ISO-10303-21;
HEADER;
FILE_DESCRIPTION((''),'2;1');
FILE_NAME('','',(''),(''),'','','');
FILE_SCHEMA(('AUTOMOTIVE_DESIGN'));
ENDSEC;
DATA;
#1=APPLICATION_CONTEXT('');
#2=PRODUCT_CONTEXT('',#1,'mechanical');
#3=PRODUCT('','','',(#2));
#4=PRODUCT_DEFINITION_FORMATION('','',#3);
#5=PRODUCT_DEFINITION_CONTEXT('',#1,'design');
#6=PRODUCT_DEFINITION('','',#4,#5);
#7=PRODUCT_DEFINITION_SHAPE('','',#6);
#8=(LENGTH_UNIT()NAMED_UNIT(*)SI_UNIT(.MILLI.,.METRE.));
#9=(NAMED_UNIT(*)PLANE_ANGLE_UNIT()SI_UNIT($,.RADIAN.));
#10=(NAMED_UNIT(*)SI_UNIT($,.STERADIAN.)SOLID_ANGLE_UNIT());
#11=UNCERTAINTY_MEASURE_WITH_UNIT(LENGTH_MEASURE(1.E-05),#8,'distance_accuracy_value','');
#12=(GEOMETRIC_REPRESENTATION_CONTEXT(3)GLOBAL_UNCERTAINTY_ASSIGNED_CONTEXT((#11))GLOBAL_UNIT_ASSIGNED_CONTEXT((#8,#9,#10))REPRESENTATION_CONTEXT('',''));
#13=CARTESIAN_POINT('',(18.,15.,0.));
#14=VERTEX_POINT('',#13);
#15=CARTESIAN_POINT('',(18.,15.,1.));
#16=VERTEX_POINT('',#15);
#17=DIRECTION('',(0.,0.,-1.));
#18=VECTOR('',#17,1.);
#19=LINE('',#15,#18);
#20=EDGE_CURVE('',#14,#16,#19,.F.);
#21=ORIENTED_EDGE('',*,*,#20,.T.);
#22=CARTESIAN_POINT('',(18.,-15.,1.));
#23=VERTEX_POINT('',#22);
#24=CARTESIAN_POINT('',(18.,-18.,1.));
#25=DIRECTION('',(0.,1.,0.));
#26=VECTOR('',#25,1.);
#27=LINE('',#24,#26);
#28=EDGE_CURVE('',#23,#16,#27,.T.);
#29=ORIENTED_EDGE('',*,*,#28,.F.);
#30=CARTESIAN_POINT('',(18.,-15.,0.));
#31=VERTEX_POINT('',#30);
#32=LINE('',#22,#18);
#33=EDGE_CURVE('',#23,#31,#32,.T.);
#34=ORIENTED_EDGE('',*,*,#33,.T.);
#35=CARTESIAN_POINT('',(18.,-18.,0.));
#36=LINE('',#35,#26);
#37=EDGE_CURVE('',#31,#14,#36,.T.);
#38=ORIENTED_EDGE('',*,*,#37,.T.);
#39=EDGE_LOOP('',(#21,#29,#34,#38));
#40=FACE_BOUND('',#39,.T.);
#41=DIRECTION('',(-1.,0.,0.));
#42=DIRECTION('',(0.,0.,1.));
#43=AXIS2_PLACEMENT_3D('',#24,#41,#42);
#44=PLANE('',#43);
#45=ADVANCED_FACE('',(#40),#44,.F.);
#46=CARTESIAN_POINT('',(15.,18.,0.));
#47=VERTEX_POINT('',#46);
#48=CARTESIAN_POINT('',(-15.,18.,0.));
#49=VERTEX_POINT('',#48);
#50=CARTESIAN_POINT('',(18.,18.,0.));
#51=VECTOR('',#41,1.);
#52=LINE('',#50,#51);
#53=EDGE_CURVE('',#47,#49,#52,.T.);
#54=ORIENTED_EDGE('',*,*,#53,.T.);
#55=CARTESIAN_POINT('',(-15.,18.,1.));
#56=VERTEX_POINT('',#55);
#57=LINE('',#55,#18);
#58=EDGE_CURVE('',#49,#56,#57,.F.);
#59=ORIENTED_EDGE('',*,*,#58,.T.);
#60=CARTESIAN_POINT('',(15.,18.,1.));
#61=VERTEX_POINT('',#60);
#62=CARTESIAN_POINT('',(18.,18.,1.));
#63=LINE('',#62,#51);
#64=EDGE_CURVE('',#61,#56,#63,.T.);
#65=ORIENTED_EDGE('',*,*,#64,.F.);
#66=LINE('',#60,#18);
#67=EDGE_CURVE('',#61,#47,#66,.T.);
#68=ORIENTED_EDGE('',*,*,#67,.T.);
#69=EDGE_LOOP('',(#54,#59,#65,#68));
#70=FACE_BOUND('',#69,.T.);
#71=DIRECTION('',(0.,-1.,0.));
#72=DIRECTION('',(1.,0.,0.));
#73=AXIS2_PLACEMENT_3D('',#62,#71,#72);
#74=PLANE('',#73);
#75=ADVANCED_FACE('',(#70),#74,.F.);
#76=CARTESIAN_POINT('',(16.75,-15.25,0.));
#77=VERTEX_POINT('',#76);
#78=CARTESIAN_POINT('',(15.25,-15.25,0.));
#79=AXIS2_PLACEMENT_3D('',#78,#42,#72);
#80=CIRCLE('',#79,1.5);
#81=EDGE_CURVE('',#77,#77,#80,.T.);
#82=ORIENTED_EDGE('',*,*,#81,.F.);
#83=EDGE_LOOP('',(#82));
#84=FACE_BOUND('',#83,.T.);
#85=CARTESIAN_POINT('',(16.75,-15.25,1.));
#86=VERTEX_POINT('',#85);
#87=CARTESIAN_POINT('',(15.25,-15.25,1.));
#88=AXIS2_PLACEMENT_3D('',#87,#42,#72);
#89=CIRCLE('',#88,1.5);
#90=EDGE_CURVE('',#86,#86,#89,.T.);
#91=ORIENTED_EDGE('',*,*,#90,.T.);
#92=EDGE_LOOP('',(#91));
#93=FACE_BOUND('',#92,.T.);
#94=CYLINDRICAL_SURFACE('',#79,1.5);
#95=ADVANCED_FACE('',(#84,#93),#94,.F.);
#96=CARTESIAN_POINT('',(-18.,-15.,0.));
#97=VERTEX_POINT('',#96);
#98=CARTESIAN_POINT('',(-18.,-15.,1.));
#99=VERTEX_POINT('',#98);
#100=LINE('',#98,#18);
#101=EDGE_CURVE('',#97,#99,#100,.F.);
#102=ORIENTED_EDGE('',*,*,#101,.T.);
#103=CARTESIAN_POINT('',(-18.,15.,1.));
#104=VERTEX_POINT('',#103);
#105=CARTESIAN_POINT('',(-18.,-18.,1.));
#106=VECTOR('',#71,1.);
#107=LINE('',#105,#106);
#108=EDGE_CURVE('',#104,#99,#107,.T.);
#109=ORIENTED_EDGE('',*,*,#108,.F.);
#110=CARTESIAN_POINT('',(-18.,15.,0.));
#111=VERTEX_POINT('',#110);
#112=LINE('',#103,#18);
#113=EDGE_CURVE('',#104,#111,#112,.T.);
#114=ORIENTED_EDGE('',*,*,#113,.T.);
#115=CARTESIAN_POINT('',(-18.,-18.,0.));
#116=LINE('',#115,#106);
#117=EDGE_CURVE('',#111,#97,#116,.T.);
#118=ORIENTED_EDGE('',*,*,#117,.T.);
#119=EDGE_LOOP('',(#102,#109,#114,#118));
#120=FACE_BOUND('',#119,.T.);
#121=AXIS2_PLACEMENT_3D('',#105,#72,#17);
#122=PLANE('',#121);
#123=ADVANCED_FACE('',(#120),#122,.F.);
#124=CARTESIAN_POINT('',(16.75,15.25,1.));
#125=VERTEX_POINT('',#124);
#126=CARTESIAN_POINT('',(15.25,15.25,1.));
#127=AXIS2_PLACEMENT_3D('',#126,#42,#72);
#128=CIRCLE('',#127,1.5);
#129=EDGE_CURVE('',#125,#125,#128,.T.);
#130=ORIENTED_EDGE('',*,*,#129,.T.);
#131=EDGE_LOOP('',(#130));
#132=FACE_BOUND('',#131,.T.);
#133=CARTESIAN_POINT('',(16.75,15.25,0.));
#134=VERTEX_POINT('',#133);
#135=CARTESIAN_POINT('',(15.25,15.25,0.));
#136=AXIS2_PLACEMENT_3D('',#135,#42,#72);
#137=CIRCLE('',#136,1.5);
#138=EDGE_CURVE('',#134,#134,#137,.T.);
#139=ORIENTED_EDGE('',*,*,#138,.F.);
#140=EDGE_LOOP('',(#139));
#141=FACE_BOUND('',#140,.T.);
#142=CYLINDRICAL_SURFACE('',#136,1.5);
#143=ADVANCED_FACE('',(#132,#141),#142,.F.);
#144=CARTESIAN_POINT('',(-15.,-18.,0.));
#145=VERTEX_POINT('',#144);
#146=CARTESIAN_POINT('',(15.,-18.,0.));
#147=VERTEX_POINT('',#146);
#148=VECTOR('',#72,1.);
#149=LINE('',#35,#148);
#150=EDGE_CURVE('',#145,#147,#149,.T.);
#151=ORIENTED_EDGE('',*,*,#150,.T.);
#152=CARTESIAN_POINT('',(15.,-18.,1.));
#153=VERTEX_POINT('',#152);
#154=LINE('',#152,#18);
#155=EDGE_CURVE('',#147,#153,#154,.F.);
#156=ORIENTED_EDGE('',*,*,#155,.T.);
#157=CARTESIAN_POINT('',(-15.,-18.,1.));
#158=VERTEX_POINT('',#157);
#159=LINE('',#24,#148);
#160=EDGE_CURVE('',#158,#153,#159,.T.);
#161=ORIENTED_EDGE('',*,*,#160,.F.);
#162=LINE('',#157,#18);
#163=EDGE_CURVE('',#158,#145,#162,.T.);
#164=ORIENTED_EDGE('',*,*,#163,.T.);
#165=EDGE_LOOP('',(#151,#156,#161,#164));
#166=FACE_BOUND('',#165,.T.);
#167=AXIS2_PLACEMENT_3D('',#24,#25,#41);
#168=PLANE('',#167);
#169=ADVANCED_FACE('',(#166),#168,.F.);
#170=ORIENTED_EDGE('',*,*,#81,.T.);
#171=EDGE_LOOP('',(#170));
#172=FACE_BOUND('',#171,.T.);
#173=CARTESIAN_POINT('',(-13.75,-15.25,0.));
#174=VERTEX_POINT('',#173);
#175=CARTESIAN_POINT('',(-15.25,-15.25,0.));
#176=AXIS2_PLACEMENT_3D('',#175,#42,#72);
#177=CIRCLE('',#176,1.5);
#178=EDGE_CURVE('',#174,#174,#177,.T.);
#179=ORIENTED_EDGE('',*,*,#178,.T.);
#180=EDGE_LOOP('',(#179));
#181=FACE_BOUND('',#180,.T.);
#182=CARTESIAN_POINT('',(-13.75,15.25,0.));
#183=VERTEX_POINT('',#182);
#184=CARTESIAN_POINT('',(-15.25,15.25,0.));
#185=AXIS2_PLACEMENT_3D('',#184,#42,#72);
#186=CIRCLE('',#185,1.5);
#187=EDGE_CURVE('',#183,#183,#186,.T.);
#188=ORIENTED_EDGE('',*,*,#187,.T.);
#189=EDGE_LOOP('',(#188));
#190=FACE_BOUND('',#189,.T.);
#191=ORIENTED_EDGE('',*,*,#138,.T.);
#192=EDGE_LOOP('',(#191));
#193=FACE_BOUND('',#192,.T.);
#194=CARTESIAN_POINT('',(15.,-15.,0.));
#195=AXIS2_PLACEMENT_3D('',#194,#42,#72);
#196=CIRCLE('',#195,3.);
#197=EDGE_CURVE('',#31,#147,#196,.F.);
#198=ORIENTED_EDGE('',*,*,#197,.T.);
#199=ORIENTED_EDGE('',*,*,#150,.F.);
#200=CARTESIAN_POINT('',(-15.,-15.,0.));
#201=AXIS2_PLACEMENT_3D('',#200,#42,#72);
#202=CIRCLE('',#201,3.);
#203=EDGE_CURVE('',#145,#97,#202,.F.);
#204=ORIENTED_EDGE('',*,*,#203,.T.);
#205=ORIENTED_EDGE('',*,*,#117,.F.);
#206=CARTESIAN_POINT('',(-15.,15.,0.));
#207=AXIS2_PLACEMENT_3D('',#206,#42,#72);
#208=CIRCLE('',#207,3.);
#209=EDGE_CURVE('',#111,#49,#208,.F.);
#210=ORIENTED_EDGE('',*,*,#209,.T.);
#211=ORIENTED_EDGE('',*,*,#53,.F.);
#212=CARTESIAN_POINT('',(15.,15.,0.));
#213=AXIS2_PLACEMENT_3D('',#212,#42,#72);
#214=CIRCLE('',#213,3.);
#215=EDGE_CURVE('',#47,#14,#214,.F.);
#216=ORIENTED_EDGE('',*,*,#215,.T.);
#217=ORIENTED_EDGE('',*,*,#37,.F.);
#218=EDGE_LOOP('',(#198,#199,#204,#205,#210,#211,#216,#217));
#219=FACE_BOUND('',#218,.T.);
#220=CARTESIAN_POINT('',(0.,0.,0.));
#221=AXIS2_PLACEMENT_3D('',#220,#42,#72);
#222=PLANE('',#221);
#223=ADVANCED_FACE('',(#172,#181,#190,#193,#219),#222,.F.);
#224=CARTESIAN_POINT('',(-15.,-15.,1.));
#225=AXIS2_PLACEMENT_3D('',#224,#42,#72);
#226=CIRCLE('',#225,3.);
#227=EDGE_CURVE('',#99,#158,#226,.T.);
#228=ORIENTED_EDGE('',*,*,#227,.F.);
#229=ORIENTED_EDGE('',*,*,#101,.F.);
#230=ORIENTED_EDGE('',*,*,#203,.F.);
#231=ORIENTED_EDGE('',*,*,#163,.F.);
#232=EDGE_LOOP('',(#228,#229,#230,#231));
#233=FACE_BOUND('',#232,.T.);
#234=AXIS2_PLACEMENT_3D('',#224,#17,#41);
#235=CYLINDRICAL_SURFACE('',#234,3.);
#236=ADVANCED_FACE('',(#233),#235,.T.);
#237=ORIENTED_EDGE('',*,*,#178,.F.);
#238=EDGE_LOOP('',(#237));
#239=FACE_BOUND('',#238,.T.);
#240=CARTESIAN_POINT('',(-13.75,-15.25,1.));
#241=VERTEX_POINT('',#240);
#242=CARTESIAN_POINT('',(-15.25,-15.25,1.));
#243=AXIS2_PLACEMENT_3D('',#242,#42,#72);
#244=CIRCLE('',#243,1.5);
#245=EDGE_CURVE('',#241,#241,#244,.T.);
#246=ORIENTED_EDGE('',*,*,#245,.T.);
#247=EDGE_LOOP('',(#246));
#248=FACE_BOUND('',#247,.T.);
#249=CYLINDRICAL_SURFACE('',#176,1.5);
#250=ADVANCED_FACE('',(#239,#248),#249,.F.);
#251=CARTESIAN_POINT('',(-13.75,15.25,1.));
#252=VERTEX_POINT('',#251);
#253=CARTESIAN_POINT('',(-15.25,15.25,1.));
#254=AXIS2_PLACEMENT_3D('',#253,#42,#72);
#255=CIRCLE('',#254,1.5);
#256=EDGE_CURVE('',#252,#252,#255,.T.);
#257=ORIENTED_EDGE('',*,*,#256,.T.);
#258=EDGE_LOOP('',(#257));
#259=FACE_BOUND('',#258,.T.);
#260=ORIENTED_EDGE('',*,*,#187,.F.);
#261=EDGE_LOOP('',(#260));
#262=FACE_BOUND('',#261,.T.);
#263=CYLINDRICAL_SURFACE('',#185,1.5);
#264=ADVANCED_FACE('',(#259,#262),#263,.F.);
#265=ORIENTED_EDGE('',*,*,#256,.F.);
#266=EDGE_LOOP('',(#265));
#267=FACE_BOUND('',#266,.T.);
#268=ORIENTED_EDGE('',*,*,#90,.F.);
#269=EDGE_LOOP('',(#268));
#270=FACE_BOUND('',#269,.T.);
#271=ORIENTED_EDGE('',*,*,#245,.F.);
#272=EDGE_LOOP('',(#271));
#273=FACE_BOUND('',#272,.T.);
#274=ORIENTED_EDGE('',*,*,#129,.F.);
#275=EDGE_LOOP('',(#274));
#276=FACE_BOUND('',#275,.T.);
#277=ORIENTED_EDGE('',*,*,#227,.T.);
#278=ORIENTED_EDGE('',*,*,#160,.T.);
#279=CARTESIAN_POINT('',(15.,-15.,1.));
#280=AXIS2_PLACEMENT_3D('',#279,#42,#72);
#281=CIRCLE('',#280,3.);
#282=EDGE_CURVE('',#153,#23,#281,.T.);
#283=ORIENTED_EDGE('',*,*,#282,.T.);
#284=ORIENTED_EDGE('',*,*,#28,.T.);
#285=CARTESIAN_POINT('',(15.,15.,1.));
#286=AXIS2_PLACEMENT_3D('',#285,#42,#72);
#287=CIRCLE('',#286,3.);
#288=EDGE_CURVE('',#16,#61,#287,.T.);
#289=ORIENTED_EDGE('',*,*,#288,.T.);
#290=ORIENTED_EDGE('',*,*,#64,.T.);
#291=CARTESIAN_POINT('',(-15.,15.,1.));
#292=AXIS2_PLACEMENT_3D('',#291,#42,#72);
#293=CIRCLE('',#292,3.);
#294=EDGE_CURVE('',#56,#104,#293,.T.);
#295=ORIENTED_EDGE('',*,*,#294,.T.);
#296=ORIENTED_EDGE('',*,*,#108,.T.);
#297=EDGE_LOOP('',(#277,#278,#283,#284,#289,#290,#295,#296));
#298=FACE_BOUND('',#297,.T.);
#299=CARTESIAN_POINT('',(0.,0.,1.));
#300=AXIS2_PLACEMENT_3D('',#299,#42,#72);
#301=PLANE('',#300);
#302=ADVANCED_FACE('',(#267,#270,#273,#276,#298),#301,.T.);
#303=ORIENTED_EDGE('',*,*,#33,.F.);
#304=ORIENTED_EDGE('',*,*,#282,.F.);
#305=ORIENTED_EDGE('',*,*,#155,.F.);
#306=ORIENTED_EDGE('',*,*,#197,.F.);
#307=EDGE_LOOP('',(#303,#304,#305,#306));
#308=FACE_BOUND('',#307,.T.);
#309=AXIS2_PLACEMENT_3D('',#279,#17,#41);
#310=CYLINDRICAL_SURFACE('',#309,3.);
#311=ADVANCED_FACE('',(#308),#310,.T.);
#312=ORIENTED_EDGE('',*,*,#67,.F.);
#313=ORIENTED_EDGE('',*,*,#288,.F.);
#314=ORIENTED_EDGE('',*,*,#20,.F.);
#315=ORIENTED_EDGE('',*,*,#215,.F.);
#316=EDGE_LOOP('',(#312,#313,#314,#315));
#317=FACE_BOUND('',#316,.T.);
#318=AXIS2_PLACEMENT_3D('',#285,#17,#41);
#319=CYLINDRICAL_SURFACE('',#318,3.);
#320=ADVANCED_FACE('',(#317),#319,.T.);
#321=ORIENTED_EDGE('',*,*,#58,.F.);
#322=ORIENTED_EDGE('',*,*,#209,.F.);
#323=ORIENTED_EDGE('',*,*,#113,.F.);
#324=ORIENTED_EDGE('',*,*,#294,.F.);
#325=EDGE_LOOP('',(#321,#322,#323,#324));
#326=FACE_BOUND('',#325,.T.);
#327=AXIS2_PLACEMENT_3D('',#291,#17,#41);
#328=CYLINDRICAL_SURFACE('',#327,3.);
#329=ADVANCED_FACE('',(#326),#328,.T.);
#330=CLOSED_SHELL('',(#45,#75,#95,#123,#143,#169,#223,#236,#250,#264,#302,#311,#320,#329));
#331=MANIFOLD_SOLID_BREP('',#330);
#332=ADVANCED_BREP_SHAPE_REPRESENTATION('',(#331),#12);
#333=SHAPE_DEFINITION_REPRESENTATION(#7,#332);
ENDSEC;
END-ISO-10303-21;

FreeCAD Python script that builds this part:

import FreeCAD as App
import Part
import Sketcher
from FreeCAD import Vector


def edges_at(feature, points):
    """Names of the edges that pass closest to the given points."""
    edges = feature.Shape.Edges
    near = lambda p: min(range(len(edges)), key=lambda i: edges[i].distToShape(Part.Vertex(*p))[0])
    return sorted({f"Edge{near(p) + 1}" for p in points})

doc = App.newDocument("Part")
body = doc.addObject("PartDesign::Body", "Body")

# Sketch on XY plane
sketch1 = doc.addObject("Sketcher::SketchObject", "Sketch")
body.addObject(sketch1)
sketch1.AttachmentSupport = (doc.XY_Plane, [""])
sketch1.MapMode = "FlatFace"
sketch1.addGeometry([
    Part.LineSegment(Vector(-18, 18, 0), Vector(-18, -18, 0)),
    Part.LineSegment(Vector(-18, -18, 0), Vector(18, -18, 0)),
    Part.LineSegment(Vector(18, -18, 0), Vector(18, 18, 0)),
    Part.LineSegment(Vector(18, 18, 0), Vector(-18, 18, 0)),
], False)
sketch1.addConstraint([
    Sketcher.Constraint("Coincident", 0, 2, 1, 1),
    Sketcher.Constraint("Coincident", 1, 2, 2, 1),
    Sketcher.Constraint("Coincident", 2, 2, 3, 1),
    Sketcher.Constraint("Coincident", 3, 2, 0, 1),
    Sketcher.Constraint("Vertical", 0),
    Sketcher.Constraint("Horizontal", 1),
    Sketcher.Constraint("Vertical", 2),
    Sketcher.Constraint("Horizontal", 3),
    Sketcher.Constraint("Symmetric", 0, 2, 2, 2, -1, 1),
    Sketcher.Constraint("Equal", 3, 0),
    Sketcher.Constraint("DistanceX", 1, 1, 1, 2, 36.0),
])
pad1 = doc.addObject("PartDesign::Pad", "Pad")
body.addObject(pad1)
pad1.Profile = sketch1
pad1.Length = 1
doc.recompute()

fillet = doc.addObject("PartDesign::Fillet", "Fillet")
body.addObject(fillet)
fillet.Base = (pad1, edges_at(pad1, [
    (-18, 18, 0.5),
    (18, 18, 0.5),
    (18, -18, 0.5),
    (-18, -18, 0.5),
]))
fillet.Radius = 3

# Sketch on XY plane
sketch2 = doc.addObject("Sketcher::SketchObject", "Sketch001")
body.addObject(sketch2)
sketch2.AttachmentSupport = (doc.XY_Plane, [""])
sketch2.MapMode = "FlatFace"
sketch2.AttachmentOffset = App.Placement(Vector(0, 0, 1), App.Rotation())
sketch2.addGeometry([
    Part.Circle(Vector(-15.25, 15.25, 0), Vector(0, 0, 1), 1.5),
    Part.Circle(Vector(15.25, 15.25, 0), Vector(0, 0, 1), 1.5),
    Part.Circle(Vector(15.25, -15.25, 0), Vector(0, 0, 1), 1.5),
    Part.Circle(Vector(-15.25, -15.25, 0), Vector(0, 0, 1), 1.5),
], False)
sketch2.addConstraint([
    Sketcher.Constraint("Equal", 0, 1),
    Sketcher.Constraint("Equal", 1, 2),
    Sketcher.Constraint("Equal", 2, 3),
    Sketcher.Constraint("Symmetric", 0, 3, 2, 3, -1, 1),
    Sketcher.Constraint("Symmetric", 1, 3, 3, 3, -1, 1),
    Sketcher.Constraint("Symmetric", 0, 3, 1, 3, -2),
    Sketcher.Constraint("Diameter", 0, 3.0),
    Sketcher.Constraint("DistanceX", 0, 3, 1, 3, 30.5),
    Sketcher.Constraint("DistanceY", 2, 3, 1, 3, 30.5),
])
pocket1 = doc.addObject("PartDesign::Pocket", "Pocket")
body.addObject(pocket1)
pocket1.Profile = sketch2
pocket1.Length = 1

doc.recompute()
